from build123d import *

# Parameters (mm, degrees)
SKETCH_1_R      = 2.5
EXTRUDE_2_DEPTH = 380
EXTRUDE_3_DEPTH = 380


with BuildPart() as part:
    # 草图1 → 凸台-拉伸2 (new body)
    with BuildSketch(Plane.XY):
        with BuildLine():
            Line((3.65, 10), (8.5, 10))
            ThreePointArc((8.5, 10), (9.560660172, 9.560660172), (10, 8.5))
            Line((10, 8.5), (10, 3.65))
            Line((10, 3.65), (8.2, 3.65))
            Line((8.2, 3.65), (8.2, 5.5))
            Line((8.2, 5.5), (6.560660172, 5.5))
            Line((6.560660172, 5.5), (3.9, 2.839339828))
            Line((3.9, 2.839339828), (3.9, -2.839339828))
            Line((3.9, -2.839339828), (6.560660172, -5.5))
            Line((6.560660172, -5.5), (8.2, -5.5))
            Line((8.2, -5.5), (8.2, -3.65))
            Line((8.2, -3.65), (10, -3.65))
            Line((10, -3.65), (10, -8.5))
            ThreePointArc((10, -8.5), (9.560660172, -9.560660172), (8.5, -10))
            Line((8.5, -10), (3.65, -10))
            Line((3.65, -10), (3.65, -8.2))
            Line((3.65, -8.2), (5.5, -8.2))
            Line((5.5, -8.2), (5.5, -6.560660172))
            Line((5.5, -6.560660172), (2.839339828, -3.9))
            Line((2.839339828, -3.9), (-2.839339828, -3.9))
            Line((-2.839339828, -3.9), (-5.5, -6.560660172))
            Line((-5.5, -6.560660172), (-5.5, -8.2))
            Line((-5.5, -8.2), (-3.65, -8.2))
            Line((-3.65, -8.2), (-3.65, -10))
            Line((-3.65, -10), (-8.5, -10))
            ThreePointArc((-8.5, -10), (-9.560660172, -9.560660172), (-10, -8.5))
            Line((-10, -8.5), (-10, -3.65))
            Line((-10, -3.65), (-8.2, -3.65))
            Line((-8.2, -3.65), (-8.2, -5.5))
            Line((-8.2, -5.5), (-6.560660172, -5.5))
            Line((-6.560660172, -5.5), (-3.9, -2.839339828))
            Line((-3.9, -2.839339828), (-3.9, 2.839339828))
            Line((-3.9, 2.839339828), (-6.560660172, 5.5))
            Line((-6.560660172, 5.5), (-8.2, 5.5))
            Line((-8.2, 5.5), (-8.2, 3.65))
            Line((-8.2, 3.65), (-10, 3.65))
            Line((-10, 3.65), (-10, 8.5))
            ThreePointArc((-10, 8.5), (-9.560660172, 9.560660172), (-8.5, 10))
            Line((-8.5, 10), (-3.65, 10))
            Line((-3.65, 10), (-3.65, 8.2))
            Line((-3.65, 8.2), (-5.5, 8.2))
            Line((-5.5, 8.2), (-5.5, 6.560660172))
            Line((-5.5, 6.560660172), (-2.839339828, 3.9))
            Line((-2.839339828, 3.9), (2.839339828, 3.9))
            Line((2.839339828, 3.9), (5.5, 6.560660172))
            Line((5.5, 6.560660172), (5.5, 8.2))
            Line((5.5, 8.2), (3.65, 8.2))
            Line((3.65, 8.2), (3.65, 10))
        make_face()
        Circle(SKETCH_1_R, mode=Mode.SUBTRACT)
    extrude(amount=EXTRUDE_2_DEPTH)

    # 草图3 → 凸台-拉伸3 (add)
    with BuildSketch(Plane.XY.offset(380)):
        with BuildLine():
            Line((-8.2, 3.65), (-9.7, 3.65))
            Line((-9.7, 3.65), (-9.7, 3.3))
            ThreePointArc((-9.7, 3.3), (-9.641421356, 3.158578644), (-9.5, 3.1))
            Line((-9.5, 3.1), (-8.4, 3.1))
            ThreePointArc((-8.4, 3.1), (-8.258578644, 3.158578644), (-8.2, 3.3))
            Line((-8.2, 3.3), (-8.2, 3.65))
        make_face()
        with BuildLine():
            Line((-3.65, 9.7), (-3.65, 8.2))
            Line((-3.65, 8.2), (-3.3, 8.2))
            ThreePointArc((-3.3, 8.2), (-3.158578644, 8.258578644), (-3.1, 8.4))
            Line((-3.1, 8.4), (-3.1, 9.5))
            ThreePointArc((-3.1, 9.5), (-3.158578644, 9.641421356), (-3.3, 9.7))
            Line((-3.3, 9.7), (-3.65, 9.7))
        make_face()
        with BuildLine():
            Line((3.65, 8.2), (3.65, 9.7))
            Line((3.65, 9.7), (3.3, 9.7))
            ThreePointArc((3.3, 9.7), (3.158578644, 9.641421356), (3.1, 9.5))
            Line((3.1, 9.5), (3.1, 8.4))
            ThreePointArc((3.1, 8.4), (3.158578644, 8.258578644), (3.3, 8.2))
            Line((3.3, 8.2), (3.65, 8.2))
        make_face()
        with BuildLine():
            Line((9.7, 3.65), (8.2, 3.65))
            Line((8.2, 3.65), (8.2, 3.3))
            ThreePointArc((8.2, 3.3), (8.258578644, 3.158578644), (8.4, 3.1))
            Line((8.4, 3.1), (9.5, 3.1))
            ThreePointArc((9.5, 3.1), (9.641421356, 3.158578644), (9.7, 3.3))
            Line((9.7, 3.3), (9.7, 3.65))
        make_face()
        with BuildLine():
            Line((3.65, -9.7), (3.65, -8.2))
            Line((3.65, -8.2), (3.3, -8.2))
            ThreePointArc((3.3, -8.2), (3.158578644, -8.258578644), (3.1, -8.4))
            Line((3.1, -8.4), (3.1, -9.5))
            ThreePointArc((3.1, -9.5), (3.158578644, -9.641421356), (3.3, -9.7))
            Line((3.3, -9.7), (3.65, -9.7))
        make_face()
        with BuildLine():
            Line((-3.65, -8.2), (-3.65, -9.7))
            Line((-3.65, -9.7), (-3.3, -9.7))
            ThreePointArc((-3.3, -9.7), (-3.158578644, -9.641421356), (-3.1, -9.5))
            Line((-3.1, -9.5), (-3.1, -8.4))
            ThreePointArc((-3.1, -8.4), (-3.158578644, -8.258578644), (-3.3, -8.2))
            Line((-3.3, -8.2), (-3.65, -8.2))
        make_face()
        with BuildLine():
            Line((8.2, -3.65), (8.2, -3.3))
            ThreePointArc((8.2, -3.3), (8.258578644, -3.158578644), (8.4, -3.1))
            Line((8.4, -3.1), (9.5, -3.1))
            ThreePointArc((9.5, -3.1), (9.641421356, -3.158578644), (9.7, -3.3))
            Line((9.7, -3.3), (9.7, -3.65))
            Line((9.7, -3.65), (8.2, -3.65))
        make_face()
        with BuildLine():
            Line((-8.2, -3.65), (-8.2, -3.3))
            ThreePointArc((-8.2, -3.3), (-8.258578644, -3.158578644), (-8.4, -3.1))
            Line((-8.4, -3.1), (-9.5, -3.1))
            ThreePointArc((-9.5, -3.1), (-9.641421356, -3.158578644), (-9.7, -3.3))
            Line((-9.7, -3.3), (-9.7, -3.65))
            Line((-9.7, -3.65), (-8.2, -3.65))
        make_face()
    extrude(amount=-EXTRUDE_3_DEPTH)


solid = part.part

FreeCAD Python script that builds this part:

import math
import FreeCAD as App
import Part
import Sketcher

V = App.Vector

doc = App.newDocument("Part")
body = doc.addObject("PartDesign::Body", "Body")

# Sketch on XY plane
sketch1 = body.newObject("Sketcher::SketchObject", "Sketch")
sketch1.AttachmentSupport = (doc.getObject("XY_Plane"), [""])
sketch1.MapMode = "FlatFace"
sketch1.addGeometry([
    Part.LineSegment(V(8.5, 10, 0), V(3.6, 10, 0)),  # 0
    Part.LineSegment(V(3.6, 10, 0), V(3.6, 8.2, 0)),  # 1
    Part.LineSegment(V(3.6, 8.2, 0), V(5.5, 8.2, 0)),  # 2
    Part.LineSegment(V(5.5, 8.2, 0), V(5.5, 6.6, 0)),  # 3
    Part.LineSegment(V(5.5, 6.6, 0), V(2.8, 3.9, 0)),  # 4
    Part.LineSegment(V(2.8, 3.9, 0), V(-2.8, 3.9, 0)),  # 5
    Part.LineSegment(V(-2.8, 3.9, 0), V(-5.5, 6.6, 0)),  # 6
    Part.LineSegment(V(-5.5, 6.6, 0), V(-5.5, 8.2, 0)),  # 7
    Part.LineSegment(V(-5.5, 8.2, 0), V(-3.6, 8.2, 0)),  # 8
    Part.LineSegment(V(-3.6, 8.2, 0), V(-3.6, 10, 0)),  # 9
    Part.LineSegment(V(-3.6, 10, 0), V(-8.5, 10, 0)),  # 10
    Part.ArcOfCircle(Part.Circle(V(-8.5, 8.5, 0), V(0, 0, 1), 1.5), math.radians(90), math.radians(180)),  # 11
    Part.LineSegment(V(-10, 8.5, 0), V(-10, 3.6, 0)),  # 12
    Part.LineSegment(V(-10, 3.6, 0), V(-8.2, 3.6, 0)),  # 13
    Part.LineSegment(V(-8.2, 3.6, 0), V(-8.2, 5.5, 0)),  # 14
    Part.LineSegment(V(-8.2, 5.5, 0), V(-6.6, 5.5, 0)),  # 15
    Part.LineSegment(V(-6.6, 5.5, 0), V(-3.9, 2.8, 0)),  # 16
    Part.LineSegment(V(-3.9, 2.8, 0), V(-3.9, -2.8, 0)),  # 17
    Part.LineSegment(V(-3.9, -2.8, 0), V(-6.6, -5.5, 0)),  # 18
    Part.LineSegment(V(-6.6, -5.5, 0), V(-8.2, -5.5, 0)),  # 19
    Part.LineSegment(V(-8.2, -5.5, 0), V(-8.2, -3.6, 0)),  # 20
    Part.LineSegment(V(-8.2, -3.6, 0), V(-10, -3.6, 0)),  # 21
    Part.LineSegment(V(-10, -3.6, 0), V(-10, -8.5, 0)),  # 22
    Part.ArcOfCircle(Part.Circle(V(-8.5, -8.5, 0), V(0, 0, 1), 1.5), math.radians(180), math.radians(270)),  # 23
    Part.LineSegment(V(-8.5, -10, 0), V(-3.6, -10, 0)),  # 24
    Part.LineSegment(V(-3.6, -10, 0), V(-3.6, -8.2, 0)),  # 25
    Part.LineSegment(V(-3.6, -8.2, 0), V(-5.5, -8.2, 0)),  # 26
    Part.LineSegment(V(-5.5, -8.2, 0), V(-5.5, -6.6, 0)),  # 27
    Part.LineSegment(V(-5.5, -6.6, 0), V(-2.8, -3.9, 0)),  # 28
    Part.LineSegment(V(-2.8, -3.9, 0), V(2.8, -3.9, 0)),  # 29
    Part.LineSegment(V(2.8, -3.9, 0), V(5.5, -6.6, 0)),  # 30
    Part.LineSegment(V(5.5, -6.6, 0), V(5.5, -8.2, 0)),  # 31
    Part.LineSegment(V(5.5, -8.2, 0), V(3.6, -8.2, 0)),  # 32
    Part.LineSegment(V(3.6, -8.2, 0), V(3.6, -10, 0)),  # 33
    Part.LineSegment(V(3.6, -10, 0), V(8.5, -10, 0)),  # 34
    Part.ArcOfCircle(Part.Circle(V(8.5, -8.5, 0), V(0, 0, 1), 1.5), math.radians(-90), math.radians(0)),  # 35
    Part.LineSegment(V(10, -8.5, 0), V(10, -3.6, 0)),  # 36
    Part.LineSegment(V(10, -3.6, 0), V(8.2, -3.6, 0)),  # 37
    Part.LineSegment(V(8.2, -3.6, 0), V(8.2, -5.5, 0)),  # 38
    Part.LineSegment(V(8.2, -5.5, 0), V(6.6, -5.5, 0)),  # 39
    Part.LineSegment(V(6.6, -5.5, 0), V(3.9, -2.8, 0)),  # 40
    Part.LineSegment(V(3.9, -2.8, 0), V(3.9, 2.8, 0)),  # 41
    Part.LineSegment(V(3.9, 2.8, 0), V(6.6, 5.5, 0)),  # 42
    Part.LineSegment(V(6.6, 5.5, 0), V(8.2, 5.5, 0)),  # 43
    Part.LineSegment(V(8.2, 5.5, 0), V(8.2, 3.6, 0)),  # 44
    Part.LineSegment(V(8.2, 3.6, 0), V(10, 3.6, 0)),  # 45
    Part.LineSegment(V(10, 3.6, 0), V(10, 8.5, 0)),  # 46
    Part.ArcOfCircle(Part.Circle(V(8.5, 8.5, 0), V(0, 0, 1), 1.5), math.radians(0), math.radians(90)),  # 47
    Part.Circle(V(0, 0, 0), V(0, 0, 1), 2.5),  # 48
], False)
sketch1.addConstraint([
    Sketcher.Constraint("Coincident", 0, 2, 1, 1),
    Sketcher.Constraint("Coincident", 1, 2, 2, 1),
    Sketcher.Constraint("Coincident", 2, 2, 3, 1),
    Sketcher.Constraint("Coincident", 3, 2, 4, 1),
    Sketcher.Constraint("Coincident", 4, 2, 5, 1),
    Sketcher.Constraint("Coincident", 5, 2, 6, 1),
    Sketcher.Constraint("Coincident", 6, 2, 7, 1),
    Sketcher.Constraint("Coincident", 7, 2, 8, 1),
    Sketcher.Constraint("Coincident", 8, 2, 9, 1),
    Sketcher.Constraint("Coincident", 9, 2, 10, 1),
    Sketcher.Constraint("Tangent", 10, 2, 11, 1),
    Sketcher.Constraint("Tangent", 11, 2, 12, 1),
    Sketcher.Constraint("Coincident", 12, 2, 13, 1),
    Sketcher.Constraint("Coincident", 13, 2, 14, 1),
    Sketcher.Constraint("Coincident", 14, 2, 15, 1),
    Sketcher.Constraint("Coincident", 15, 2, 16, 1),
    Sketcher.Constraint("Coincident", 16, 2, 17, 1),
    Sketcher.Constraint("Coincident", 17, 2, 18, 1),
    Sketcher.Constraint("Coincident", 18, 2, 19, 1),
    Sketcher.Constraint("Coincident", 19, 2, 20, 1),
    Sketcher.Constraint("Coincident", 20, 2, 21, 1),
    Sketcher.Constraint("Coincident", 21, 2, 22, 1),
    Sketcher.Constraint("Tangent", 22, 2, 23, 1),
    Sketcher.Constraint("Tangent", 23, 2, 24, 1),
    Sketcher.Constraint("Coincident", 24, 2, 25, 1),
    Sketcher.Constraint("Coincident", 25, 2, 26, 1),
    Sketcher.Constraint("Coincident", 26, 2, 27, 1),
    Sketcher.Constraint("Coincident", 27, 2, 28, 1),
    Sketcher.Constraint("Coincident", 28, 2, 29, 1),
    Sketcher.Constraint("Coincident", 29, 2, 30, 1),
    Sketcher.Constraint("Coincident", 30, 2, 31, 1),
    Sketcher.Constraint("Coincident", 31, 2, 32, 1),
    Sketcher.Constraint("Coincident", 32, 2, 33, 1),
    Sketcher.Constraint("Coincident", 33, 2, 34, 1),
    Sketcher.Constraint("Tangent", 34, 2, 35, 1),
    Sketcher.Constraint("Tangent", 35, 2, 36, 1),
    Sketcher.Constraint("Coincident", 36, 2, 37, 1),
    Sketcher.Constraint("Coincident", 37, 2, 38, 1),
    Sketcher.Constraint("Coincident", 38, 2, 39, 1),
    Sketcher.Constraint("Coincident", 39, 2, 40, 1),
    Sketcher.Constraint("Coincident", 40, 2, 41, 1),
    Sketcher.Constraint("Coincident", 41, 2, 42, 1),
    Sketcher.Constraint("Coincident", 42, 2, 43, 1),
    Sketcher.Constraint("Coincident", 43, 2, 44, 1),
    Sketcher.Constraint("Coincident", 44, 2, 45, 1),
    Sketcher.Constraint("Coincident", 45, 2, 46, 1),
    Sketcher.Constraint("Tangent", 46, 2, 47, 1),
    Sketcher.Constraint("Tangent", 47, 2, 0, 1),
    Sketcher.Constraint("Horizontal", 0),
    Sketcher.Constraint("Vertical", 1),
    Sketcher.Constraint("Horizontal", 2),
    Sketcher.Constraint("Vertical", 3),
    Sketcher.Constraint("Horizontal", 5),
    Sketcher.Constraint("Vertical", 7),
    Sketcher.Constraint("Horizontal", 8),
    Sketcher.Constraint("Vertical", 9),
    Sketcher.Constraint("Horizontal", 10),
    Sketcher.Constraint("Vertical", 12),
    Sketcher.Constraint("Horizontal", 13),
    Sketcher.Constraint("Vertical", 14),
    Sketcher.Constraint("Horizontal", 15),
    Sketcher.Constraint("Vertical", 17),
    Sketcher.Constraint("Horizontal", 19),
    Sketcher.Constraint("Vertical", 20),
    Sketcher.Constraint("Horizontal", 21),
    Sketcher.Constraint("Vertical", 22),
    Sketcher.Constraint("Horizontal", 24),
    Sketcher.Constraint("Vertical", 25),
    Sketcher.Constraint("Horizontal", 26),
    Sketcher.Constraint("Vertical", 27),
    Sketcher.Constraint("Horizontal", 29),
    Sketcher.Constraint("Vertical", 31),
    Sketcher.Constraint("Horizontal", 32),
    Sketcher.Constraint("Vertical", 33),
    Sketcher.Constraint("Horizontal", 34),
    Sketcher.Constraint("Vertical", 36),
    Sketcher.Constraint("Horizontal", 37),
    Sketcher.Constraint("Vertical", 38),
    Sketcher.Constraint("Horizontal", 39),
    Sketcher.Constraint("Vertical", 41),
    Sketcher.Constraint("Horizontal", 43),
    Sketcher.Constraint("Vertical", 44),
    Sketcher.Constraint("Horizontal", 45),
    Sketcher.Constraint("Vertical", 46),
    Sketcher.Constraint("Coincident", 48, 3, -1, 1),
    Sketcher.Constraint("Equal", 11, 23),
    Sketcher.Constraint("Equal", 23, 35),
    Sketcher.Constraint("Equal", 35, 47),
    Sketcher.Constraint("Symmetric", 11, 3, 35, 3, -1, 1),
    Sketcher.Constraint("Symmetric", 23, 3, 47, 3, -1, 1),
    Sketcher.Constraint("Symmetric", 1, 2, 25, 2, -1, 1),
    Sketcher.Constraint("Symmetric", 3, 2, 27, 2, -1, 1),
    Sketcher.Constraint("Symmetric", 4, 2, 28, 2, -1, 1),
    Sketcher.Constraint("Symmetric", 6, 2, 30, 2, -1, 1),
    Sketcher.Constraint("Symmetric", 8, 2, 32, 2, -1, 1),
    Sketcher.Constraint("Symmetric", 13, 2, 37, 2, -1, 1),
    Sketcher.Constraint("Symmetric", 15, 2, 39, 2, -1, 1),
    Sketcher.Constraint("Symmetric", 16, 2, 40, 2, -1, 1),
    Sketcher.Constraint("Symmetric", 18, 2, 42, 2, -1, 1),
    Sketcher.Constraint("Symmetric", 20, 2, 44, 2, -1, 1),
    Sketcher.Constraint("Symmetric", 23, 3, 35, 3, -2),
    Sketcher.Constraint("Symmetric", 3, 2, 6, 2, -2),
    Sketcher.Constraint("Symmetric", 1, 2, 8, 2, -2),
    Sketcher.Constraint("Symmetric", 20, 2, 37, 2, -2),
    Sketcher.Constraint("Symmetric", 18, 2, 39, 2, -2),
    Sketcher.Constraint("Perpendicular", 4, 6),
    Sketcher.Constraint("Parallel", 6, 16),
    Sketcher.Constraint("Perpendicular", 16, 18),
    Sketcher.Constraint("Perpendicular", 28, 30),
    Sketcher.Constraint("Perpendicular", 40, 42),
    Sketcher.Constraint("Horizontal", 17, 2, 40, 2),
    Sketcher.Constraint("Equal", 45, 1),
    Sketcher.Constraint("Equal", 43, 3),
    Sketcher.Constraint("Equal", 34, 12),
    Sketcher.Constraint("Equal", 32, 14),
    Sketcher.Constraint("Equal", 29, 17),
    Sketcher.Constraint("Equal", 6, 16),
    Sketcher.Constraint("Diameter", 48, 5.0),
    Sketcher.Constraint("Radius", 11, 1.5),
    Sketcher.Constraint("DistanceX", 13, 1, 13, 2, 1.8),
    Sketcher.Constraint("DistanceY", -1, 1, 0, 2, 10.0),
    Sketcher.Constraint("DistanceX", 2, 2, 47, 3, 3.0),
    Sketcher.Constraint("DistanceX", 0, 2, 0, 1, 4.85),
    Sketcher.Constraint("DistanceY", -1, 1, 4, 2, 3.9),
    Sketcher.Constraint("DistanceX", 5, 2, 5, 1, 5.67868),
])
pad1 = body.newObject("PartDesign::Pad", "Pad")
pad1.Profile = sketch1
pad1.Length = 380

# Sketch on XY plane
sketch2 = body.newObject("Sketcher::SketchObject", "Sketch001")
sketch2.AttachmentSupport = (doc.getObject("XY_Plane"), [""])
sketch2.MapMode = "FlatFace"
sketch2.AttachmentOffset = App.Placement(V(0, 0, 380), App.Rotation())
sketch2.addGeometry([
    Part.LineSegment(V(-8.2, 3.65, 0), V(-9.7, 3.65, 0)),  # 0
    Part.LineSegment(V(-9.7, 3.65, 0), V(-9.7, 3.3, 0)),  # 1
    Part.ArcOfCircle(Part.Circle(V(-9.5, 3.3, 0), V(0, 0, 1), 0.2), math.radians(-180), math.radians(-90)),  # 2
    Part.LineSegment(V(-9.5, 3.1, 0), V(-8.4, 3.1, 0)),  # 3
    Part.ArcOfCircle(Part.Circle(V(-8.4, 3.3, 0), V(0, 0, 1), 0.2), math.radians(-90), math.radians(0)),  # 4
    Part.LineSegment(V(-8.2, 3.3, 0), V(-8.2, 3.65, 0)),  # 5
    Part.LineSegment(V(-3.65, 9.7, 0), V(-3.65, 8.2, 0)),  # 6
    Part.LineSegment(V(-3.65, 8.2, 0), V(-3.3, 8.2, 0)),  # 7
    Part.ArcOfCircle(Part.Circle(V(-3.3, 8.4, 0), V(0, 0, 1), 0.2), math.radians(-90), math.radians(0)),  # 8
    Part.LineSegment(V(-3.1, 8.4, 0), V(-3.1, 9.5, 0)),  # 9
    Part.ArcOfCircle(Part.Circle(V(-3.3, 9.5, 0), V(0, 0, 1), 0.2), math.radians(0), math.radians(90)),  # 10
    Part.LineSegment(V(-3.3, 9.7, 0), V(-3.65, 9.7, 0)),  # 11
    Part.LineSegment(V(3.65, 8.2, 0), V(3.65, 9.7, 0)),  # 12
    Part.LineSegment(V(3.65, 9.7, 0), V(3.3, 9.7, 0)),  # 13
    Part.ArcOfCircle(Part.Circle(V(3.3, 9.5, 0), V(0, 0, 1), 0.2), math.radians(90), math.radians(180)),  # 14
    Part.LineSegment(V(3.1, 9.5, 0), V(3.1, 8.4, 0)),  # 15
    Part.ArcOfCircle(Part.Circle(V(3.3, 8.4, 0), V(0, 0, 1), 0.2), math.radians(-180), math.radians(-90)),  # 16
    Part.LineSegment(V(3.3, 8.2, 0), V(3.65, 8.2, 0)),  # 17
    Part.LineSegment(V(9.7, 3.65, 0), V(8.2, 3.65, 0)),  # 18
    Part.LineSegment(V(8.2, 3.65, 0), V(8.2, 3.3, 0)),  # 19
    Part.ArcOfCircle(Part.Circle(V(8.4, 3.3, 0), V(0, 0, 1), 0.2), math.radians(-180), math.radians(-90)),  # 20
    Part.LineSegment(V(8.4, 3.1, 0), V(9.5, 3.1, 0)),  # 21
    Part.ArcOfCircle(Part.Circle(V(9.5, 3.3, 0), V(0, 0, 1), 0.2), math.radians(-90), math.radians(0)),  # 22
    Part.LineSegment(V(9.7, 3.3, 0), V(9.7, 3.65, 0)),  # 23
    Part.LineSegment(V(3.65, -9.7, 0), V(3.65, -8.2, 0)),  # 24
    Part.LineSegment(V(3.65, -8.2, 0), V(3.3, -8.2, 0)),  # 25
    Part.ArcOfCircle(Part.Circle(V(3.3, -8.4, 0), V(0, 0, 1), 0.2), math.radians(90), math.radians(180)),  # 26
    Part.LineSegment(V(3.1, -8.4, 0), V(3.1, -9.5, 0)),  # 27
    Part.ArcOfCircle(Part.Circle(V(3.3, -9.5, 0), V(0, 0, 1), 0.2), math.radians(-180), math.radians(-90)),  # 28
    Part.LineSegment(V(3.3, -9.7, 0), V(3.65, -9.7, 0)),  # 29
    Part.LineSegment(V(-3.65, -8.2, 0), V(-3.65, -9.7, 0)),  # 30
    Part.LineSegment(V(-3.65, -9.7, 0), V(-3.3, -9.7, 0)),  # 31
    Part.ArcOfCircle(Part.Circle(V(-3.3, -9.5, 0), V(0, 0, 1), 0.2), math.radians(-90), math.radians(0)),  # 32
    Part.LineSegment(V(-3.1, -9.5, 0), V(-3.1, -8.4, 0)),  # 33
    Part.ArcOfCircle(Part.Circle(V(-3.3, -8.4, 0), V(0, 0, 1), 0.2), math.radians(0), math.radians(90)),  # 34
    Part.LineSegment(V(-3.3, -8.2, 0), V(-3.65, -8.2, 0)),  # 35
    Part.LineSegment(V(8.2, -3.3, 0), V(8.2, -3.65, 0)),  # 36
    Part.LineSegment(V(8.2, -3.65, 0), V(9.7, -3.65, 0)),  # 37
    Part.LineSegment(V(9.7, -3.65, 0), V(9.7, -3.3, 0)),  # 38
    Part.ArcOfCircle(Part.Circle(V(9.5, -3.3, 0), V(0, 0, 1), 0.2), math.radians(0), math.radians(90)),  # 39
    Part.LineSegment(V(9.5, -3.1, 0), V(8.4, -3.1, 0)),  # 40
    Part.ArcOfCircle(Part.Circle(V(8.4, -3.3, 0), V(0, 0, 1), 0.2), math.radians(90), math.radians(180)),  # 41
    Part.LineSegment(V(-8.2, -3.65, 0), V(-8.2, -3.3, 0)),  # 42
    Part.ArcOfCircle(Part.Circle(V(-8.4, -3.3, 0), V(0, 0, 1), 0.2), math.radians(0), math.radians(90)),  # 43
    Part.LineSegment(V(-8.4, -3.1, 0), V(-9.5, -3.1, 0)),  # 44
    Part.ArcOfCircle(Part.Circle(V(-9.5, -3.3, 0), V(0, 0, 1), 0.2), math.radians(90), math.radians(180)),  # 45
    Part.LineSegment(V(-9.7, -3.3, 0), V(-9.7, -3.65, 0)),  # 46
    Part.LineSegment(V(-9.7, -3.65, 0), V(-8.2, -3.65, 0)),  # 47
], False)
sketch2.addConstraint([
    Sketcher.Constraint("Coincident", 0, 2, 1, 1),
    Sketcher.Constraint("Tangent", 1, 2, 2, 1),
    Sketcher.Constraint("Tangent", 2, 2, 3, 1),
    Sketcher.Constraint("Tangent", 3, 2, 4, 1),
    Sketcher.Constraint("Tangent", 4, 2, 5, 1),
    Sketcher.Constraint("Coincident", 5, 2, 0, 1),
    Sketcher.Constraint("Coincident", 6, 2, 7, 1),
    Sketcher.Constraint("Tangent", 7, 2, 8, 1),
    Sketcher.Constraint("Tangent", 8, 2, 9, 1),
    Sketcher.Constraint("Tangent", 9, 2, 10, 1),
    Sketcher.Constraint("Tangent", 10, 2, 11, 1),
    Sketcher.Constraint("Coincident", 11, 2, 6, 1),
    Sketcher.Constraint("Coincident", 12, 2, 13, 1),
    Sketcher.Constraint("Tangent", 13, 2, 14, 1),
    Sketcher.Constraint("Tangent", 14, 2, 15, 1),
    Sketcher.Constraint("Tangent", 15, 2, 16, 1),
    Sketcher.Constraint("Tangent", 16, 2, 17, 1),
    Sketcher.Constraint("Coincident", 17, 2, 12, 1),
    Sketcher.Constraint("Coincident", 18, 2, 19, 1),
    Sketcher.Constraint("Tangent", 19, 2, 20, 1),
    Sketcher.Constraint("Tangent", 20, 2, 21, 1),
    Sketcher.Constraint("Tangent", 21, 2, 22, 1),
    Sketcher.Constraint("Tangent", 22, 2, 23, 1),
    Sketcher.Constraint("Coincident", 23, 2, 18, 1),
    Sketcher.Constraint("Coincident", 24, 2, 25, 1),
    Sketcher.Constraint("Tangent", 25, 2, 26, 1),
    Sketcher.Constraint("Tangent", 26, 2, 27, 1),
    Sketcher.Constraint("Tangent", 27, 2, 28, 1),
    Sketcher.Constraint("Tangent", 28, 2, 29, 1),
    Sketcher.Constraint("Coincident", 29, 2, 24, 1),
    Sketcher.Constraint("Coincident", 30, 2, 31, 1),
    Sketcher.Constraint("Tangent", 31, 2, 32, 1),
    Sketcher.Constraint("Tangent", 32, 2, 33, 1),
    Sketcher.Constraint("Tangent", 33, 2, 34, 1),
    Sketcher.Constraint("Tangent", 34, 2, 35, 1),
    Sketcher.Constraint("Coincident", 35, 2, 30, 1),
    Sketcher.Constraint("Coincident", 36, 2, 37, 1),
    Sketcher.Constraint("Coincident", 37, 2, 38, 1),
    Sketcher.Constraint("Tangent", 38, 2, 39, 1),
    Sketcher.Constraint("Tangent", 39, 2, 40, 1),
    Sketcher.Constraint("Tangent", 40, 2, 41, 1),
    Sketcher.Constraint("Tangent", 41, 2, 36, 1),
    Sketcher.Constraint("Tangent", 42, 2, 43, 1),
    Sketcher.Constraint("Tangent", 43, 2, 44, 1),
    Sketcher.Constraint("Tangent", 44, 2, 45, 1),
    Sketcher.Constraint("Tangent", 45, 2, 46, 1),
    Sketcher.Constraint("Coincident", 46, 2, 47, 1),
    Sketcher.Constraint("Coincident", 47, 2, 42, 1),
    Sketcher.Constraint("Horizontal", 0),
    Sketcher.Constraint("Vertical", 1),
    Sketcher.Constraint("Horizontal", 3),
    Sketcher.Constraint("Vertical", 5),
    Sketcher.Constraint("Vertical", 6),
    Sketcher.Constraint("Horizontal", 7),
    Sketcher.Constraint("Vertical", 9),
    Sketcher.Constraint("Horizontal", 11),
    Sketcher.Constraint("Vertical", 12),
    Sketcher.Constraint("Horizontal", 13),
    Sketcher.Constraint("Vertical", 15),
    Sketcher.Constraint("Horizontal", 17),
    Sketcher.Constraint("Horizontal", 18),
    Sketcher.Constraint("Vertical", 19),
    Sketcher.Constraint("Horizontal", 21),
    Sketcher.Constraint("Vertical", 23),
    Sketcher.Constraint("Vertical", 24),
    Sketcher.Constraint("Horizontal", 25),
    Sketcher.Constraint("Vertical", 27),
    Sketcher.Constraint("Horizontal", 29),
    Sketcher.Constraint("Vertical", 30),
    Sketcher.Constraint("Horizontal", 31),
    Sketcher.Constraint("Vertical", 33),
    Sketcher.Constraint("Horizontal", 35),
    Sketcher.Constraint("Vertical", 36),
    Sketcher.Constraint("Horizontal", 37),
    Sketcher.Constraint("Vertical", 38),
    Sketcher.Constraint("Horizontal", 40),
    Sketcher.Constraint("Vertical", 42),
    Sketcher.Constraint("Horizontal", 44),
    Sketcher.Constraint("Vertical", 46),
    Sketcher.Constraint("Horizontal", 47),
    Sketcher.Constraint("Equal", 2, 4),
    Sketcher.Constraint("Equal", 4, 8),
    Sketcher.Constraint("Equal", 8, 10),
    Sketcher.Constraint("Equal", 10, 14),
    Sketcher.Constraint("Equal", 14, 16),
    Sketcher.Constraint("Equal", 16, 20),
    Sketcher.Constraint("Equal", 20, 22),
    Sketcher.Constraint("Equal", 22, 26),
    Sketcher.Constraint("Equal", 26, 28),
    Sketcher.Constraint("Equal", 28, 32),
    Sketcher.Constraint("Equal", 32, 34),
    Sketcher.Constraint("Equal", 34, 39),
    Sketcher.Constraint("Equal", 39, 41),
    Sketcher.Constraint("Equal", 41, 43),
    Sketcher.Constraint("Equal", 43, 45),
    Sketcher.Constraint("Symmetric", 8, 3, 26, 3, -1, 1),
    Sketcher.Constraint("Symmetric", 14, 3, 32, 3, -1, 1),
    Sketcher.Constraint("Symmetric", 2, 3, 39, 3, -1, 1),
    Sketcher.Constraint("Symmetric", 20, 3, 43, 3, -1, 1),
    Sketcher.Constraint("Symmetric", 11, 2, 29, 2, -1, 1),
    Sketcher.Constraint("Symmetric", 17, 2, 35, 2, -1, 1),
    Sketcher.Constraint("Symmetric", 5, 2, 36, 2, -1, 1),
    Sketcher.Constraint("Symmetric", 23, 2, 46, 2, -1, 1),
    Sketcher.Constraint("Symmetric", 10, 3, 14, 3, -2),
    Sketcher.Constraint("Symmetric", 4, 3, 20, 3, -2),
    Sketcher.Constraint("Symmetric", 6, 2, 17, 2, -2),
    Sketcher.Constraint("Symmetric", 0, 2, 23, 2, -2),
    Sketcher.Constraint("Equal", 35, 1),
    Sketcher.Constraint("Equal", 47, 6),
    Sketcher.Constraint("Radius", 2, 0.2),
    Sketcher.Constraint("DistanceX", 0, 2, 0, 1, 1.5),
    Sketcher.Constraint("DistanceX", 7, 1, 7, 2, 0.35),
    Sketcher.Constraint("DistanceX", 2, 3, -1, 1, 9.5),
    Sketcher.Constraint("DistanceY", -1, 1, 2, 3, 3.3),
    Sketcher.Constraint("DistanceX", 8, 3, -1, 1, 3.3),
    Sketcher.Constraint("DistanceY", -1, 1, 8, 3, 8.4),
])
pad2 = body.newObject("PartDesign::Pad", "Pad001")
pad2.Profile = sketch2
pad2.Length = 380
pad2.Reversed = True

doc.recompute()
